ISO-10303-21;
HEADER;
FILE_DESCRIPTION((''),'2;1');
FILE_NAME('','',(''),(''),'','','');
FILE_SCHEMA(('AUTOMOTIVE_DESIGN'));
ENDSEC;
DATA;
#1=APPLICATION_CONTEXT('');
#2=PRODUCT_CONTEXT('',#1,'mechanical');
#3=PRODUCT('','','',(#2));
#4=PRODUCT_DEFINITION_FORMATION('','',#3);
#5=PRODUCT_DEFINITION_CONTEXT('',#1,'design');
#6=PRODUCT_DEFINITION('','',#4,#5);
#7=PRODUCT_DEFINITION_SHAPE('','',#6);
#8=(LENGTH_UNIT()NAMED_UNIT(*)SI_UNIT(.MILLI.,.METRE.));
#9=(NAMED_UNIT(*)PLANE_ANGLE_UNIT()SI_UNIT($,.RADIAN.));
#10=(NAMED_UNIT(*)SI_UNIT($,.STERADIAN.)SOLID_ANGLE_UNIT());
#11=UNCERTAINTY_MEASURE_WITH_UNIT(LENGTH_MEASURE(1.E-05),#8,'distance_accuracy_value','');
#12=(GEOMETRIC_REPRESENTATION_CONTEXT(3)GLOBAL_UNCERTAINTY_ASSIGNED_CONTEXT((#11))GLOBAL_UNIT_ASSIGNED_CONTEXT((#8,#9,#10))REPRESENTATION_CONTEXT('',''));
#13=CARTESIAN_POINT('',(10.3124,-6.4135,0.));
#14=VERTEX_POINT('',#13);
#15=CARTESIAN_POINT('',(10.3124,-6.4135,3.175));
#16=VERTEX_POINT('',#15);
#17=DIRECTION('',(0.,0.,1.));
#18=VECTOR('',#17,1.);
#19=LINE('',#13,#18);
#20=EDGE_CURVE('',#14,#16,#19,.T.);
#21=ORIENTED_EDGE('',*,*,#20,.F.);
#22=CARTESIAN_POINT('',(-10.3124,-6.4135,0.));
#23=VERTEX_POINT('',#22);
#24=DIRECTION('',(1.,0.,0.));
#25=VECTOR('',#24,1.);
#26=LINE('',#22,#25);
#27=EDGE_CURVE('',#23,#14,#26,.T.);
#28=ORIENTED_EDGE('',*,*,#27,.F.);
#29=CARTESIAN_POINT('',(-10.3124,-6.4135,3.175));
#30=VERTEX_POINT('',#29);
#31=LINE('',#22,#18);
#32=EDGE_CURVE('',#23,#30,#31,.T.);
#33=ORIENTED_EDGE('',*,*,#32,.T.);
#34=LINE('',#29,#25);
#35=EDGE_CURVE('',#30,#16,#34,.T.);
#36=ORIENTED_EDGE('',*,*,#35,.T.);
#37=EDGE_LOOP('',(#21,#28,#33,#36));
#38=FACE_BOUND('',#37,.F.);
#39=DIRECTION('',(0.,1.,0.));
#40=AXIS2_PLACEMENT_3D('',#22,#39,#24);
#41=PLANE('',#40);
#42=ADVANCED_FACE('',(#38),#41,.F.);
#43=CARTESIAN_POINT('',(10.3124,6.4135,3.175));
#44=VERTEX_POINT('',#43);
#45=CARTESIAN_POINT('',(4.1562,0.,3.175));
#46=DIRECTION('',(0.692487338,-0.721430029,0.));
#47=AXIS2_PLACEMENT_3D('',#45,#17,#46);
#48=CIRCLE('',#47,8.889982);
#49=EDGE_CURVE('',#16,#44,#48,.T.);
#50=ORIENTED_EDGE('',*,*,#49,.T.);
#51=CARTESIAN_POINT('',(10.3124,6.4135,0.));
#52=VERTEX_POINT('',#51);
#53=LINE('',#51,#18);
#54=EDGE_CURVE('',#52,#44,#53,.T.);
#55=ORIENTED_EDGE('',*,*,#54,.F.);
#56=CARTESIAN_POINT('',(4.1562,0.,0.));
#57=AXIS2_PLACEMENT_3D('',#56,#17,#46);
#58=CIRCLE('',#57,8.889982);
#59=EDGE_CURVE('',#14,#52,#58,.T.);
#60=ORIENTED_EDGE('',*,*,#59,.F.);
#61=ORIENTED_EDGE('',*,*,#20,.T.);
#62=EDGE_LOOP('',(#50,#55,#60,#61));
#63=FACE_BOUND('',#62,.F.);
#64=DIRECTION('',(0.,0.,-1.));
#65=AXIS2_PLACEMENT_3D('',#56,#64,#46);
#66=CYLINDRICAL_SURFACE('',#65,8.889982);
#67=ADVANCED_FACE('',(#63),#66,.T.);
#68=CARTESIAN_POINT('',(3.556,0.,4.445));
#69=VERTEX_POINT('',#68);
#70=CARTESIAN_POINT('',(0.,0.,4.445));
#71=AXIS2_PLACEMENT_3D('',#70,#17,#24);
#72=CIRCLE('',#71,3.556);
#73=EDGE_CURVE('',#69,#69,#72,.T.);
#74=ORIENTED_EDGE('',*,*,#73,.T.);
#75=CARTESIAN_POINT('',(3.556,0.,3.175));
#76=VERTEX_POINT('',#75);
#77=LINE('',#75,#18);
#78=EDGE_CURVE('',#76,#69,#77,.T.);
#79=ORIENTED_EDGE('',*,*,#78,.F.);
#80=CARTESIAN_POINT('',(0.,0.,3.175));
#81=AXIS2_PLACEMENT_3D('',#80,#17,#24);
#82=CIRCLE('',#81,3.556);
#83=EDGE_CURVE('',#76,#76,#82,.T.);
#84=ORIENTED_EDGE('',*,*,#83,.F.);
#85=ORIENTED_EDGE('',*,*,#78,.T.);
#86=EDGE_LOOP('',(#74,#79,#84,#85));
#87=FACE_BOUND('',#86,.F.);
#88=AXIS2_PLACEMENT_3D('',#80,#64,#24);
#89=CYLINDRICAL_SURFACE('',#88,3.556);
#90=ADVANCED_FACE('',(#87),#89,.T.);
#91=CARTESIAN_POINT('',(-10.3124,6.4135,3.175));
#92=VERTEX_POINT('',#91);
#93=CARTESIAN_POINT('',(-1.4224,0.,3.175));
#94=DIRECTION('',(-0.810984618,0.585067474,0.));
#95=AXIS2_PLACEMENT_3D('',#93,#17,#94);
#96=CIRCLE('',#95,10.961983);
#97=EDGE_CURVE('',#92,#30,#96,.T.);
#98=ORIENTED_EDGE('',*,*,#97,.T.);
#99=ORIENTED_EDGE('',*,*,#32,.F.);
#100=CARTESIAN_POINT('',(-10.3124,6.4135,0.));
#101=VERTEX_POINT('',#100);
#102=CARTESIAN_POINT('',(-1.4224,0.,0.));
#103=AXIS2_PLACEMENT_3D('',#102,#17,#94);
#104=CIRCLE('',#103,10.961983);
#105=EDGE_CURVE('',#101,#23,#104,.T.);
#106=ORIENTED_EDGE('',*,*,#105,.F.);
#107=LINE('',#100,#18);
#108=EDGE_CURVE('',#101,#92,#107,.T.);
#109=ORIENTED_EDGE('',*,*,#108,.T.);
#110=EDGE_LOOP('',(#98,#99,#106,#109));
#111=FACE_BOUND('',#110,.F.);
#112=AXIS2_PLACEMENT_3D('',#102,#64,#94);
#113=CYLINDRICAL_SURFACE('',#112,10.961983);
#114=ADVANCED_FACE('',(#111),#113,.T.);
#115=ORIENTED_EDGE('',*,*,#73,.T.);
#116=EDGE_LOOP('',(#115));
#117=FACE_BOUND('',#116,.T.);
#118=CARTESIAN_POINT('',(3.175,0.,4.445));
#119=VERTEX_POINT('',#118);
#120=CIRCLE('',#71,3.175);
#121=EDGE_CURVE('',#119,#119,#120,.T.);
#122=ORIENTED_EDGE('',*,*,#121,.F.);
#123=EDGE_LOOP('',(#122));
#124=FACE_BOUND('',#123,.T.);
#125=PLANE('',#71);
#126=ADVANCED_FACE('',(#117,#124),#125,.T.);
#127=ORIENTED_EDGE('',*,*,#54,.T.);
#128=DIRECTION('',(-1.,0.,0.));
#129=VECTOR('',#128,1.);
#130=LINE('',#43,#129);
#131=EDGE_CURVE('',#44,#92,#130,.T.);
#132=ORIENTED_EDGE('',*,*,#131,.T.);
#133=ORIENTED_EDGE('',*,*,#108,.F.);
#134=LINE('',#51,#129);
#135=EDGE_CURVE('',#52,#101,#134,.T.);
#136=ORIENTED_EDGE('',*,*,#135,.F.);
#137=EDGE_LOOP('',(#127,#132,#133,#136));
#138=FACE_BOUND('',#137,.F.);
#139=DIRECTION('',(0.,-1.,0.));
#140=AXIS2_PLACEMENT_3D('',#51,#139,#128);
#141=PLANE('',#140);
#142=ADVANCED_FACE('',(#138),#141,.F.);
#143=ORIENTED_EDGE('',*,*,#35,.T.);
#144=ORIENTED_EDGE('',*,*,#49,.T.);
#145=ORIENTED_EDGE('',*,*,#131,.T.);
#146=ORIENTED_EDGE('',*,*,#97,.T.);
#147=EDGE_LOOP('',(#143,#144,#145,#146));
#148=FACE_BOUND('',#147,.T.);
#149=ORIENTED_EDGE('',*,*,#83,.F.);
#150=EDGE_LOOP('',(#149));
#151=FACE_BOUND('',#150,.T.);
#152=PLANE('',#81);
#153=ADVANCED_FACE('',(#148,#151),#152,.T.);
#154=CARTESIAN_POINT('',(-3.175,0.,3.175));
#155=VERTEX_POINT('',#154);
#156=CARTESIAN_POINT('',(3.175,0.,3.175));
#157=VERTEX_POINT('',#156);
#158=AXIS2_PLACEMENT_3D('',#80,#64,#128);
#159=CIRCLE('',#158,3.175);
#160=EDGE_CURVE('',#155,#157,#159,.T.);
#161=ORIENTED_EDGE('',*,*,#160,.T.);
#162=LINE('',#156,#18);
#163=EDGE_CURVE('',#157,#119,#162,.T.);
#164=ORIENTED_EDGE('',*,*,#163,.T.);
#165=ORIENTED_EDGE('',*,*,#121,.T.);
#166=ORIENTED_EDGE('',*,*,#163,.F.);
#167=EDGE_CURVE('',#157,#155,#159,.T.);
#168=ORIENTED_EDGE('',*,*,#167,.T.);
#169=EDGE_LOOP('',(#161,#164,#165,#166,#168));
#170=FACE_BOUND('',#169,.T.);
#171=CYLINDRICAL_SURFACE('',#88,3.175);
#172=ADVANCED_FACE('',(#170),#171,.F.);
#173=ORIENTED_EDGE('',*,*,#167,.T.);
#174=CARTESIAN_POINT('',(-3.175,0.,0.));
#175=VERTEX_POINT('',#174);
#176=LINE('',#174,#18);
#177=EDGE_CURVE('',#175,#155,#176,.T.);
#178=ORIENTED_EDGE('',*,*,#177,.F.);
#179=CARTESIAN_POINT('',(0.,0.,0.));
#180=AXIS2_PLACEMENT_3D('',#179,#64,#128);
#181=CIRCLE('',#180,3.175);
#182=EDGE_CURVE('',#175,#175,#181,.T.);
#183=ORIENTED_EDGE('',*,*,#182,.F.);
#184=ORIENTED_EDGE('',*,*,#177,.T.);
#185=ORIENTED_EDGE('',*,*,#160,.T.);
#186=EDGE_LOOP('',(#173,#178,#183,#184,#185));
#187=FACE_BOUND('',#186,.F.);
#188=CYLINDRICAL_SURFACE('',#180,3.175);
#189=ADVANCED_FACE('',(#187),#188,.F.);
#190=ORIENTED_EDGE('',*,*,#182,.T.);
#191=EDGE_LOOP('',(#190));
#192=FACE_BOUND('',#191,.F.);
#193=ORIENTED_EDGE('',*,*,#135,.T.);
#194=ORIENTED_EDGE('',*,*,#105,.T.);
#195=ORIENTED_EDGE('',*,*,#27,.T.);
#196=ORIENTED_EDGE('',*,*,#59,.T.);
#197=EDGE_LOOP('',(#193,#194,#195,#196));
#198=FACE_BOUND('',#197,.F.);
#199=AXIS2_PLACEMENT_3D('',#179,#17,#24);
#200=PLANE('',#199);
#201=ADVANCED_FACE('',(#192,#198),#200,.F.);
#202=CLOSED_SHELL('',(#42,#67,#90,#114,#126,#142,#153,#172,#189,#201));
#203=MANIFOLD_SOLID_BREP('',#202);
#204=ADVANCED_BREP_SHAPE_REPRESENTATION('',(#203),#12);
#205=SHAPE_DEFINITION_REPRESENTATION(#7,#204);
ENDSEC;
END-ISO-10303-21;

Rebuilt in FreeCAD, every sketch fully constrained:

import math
import FreeCAD as App
import Part
import Sketcher

V = App.Vector
Q = App.Units.Quantity

doc = App.newDocument("Part")
body = doc.addObject("PartDesign::Body", "Body")

sketch1 = body.newObject("Sketcher::SketchObject", "Sketch")
sketch1.AttachmentSupport = (doc.getObject("XY_Plane"), [""])
sketch1.MapMode = "FlatFace"
sketch1.addGeometry(Part.ArcOfCircle(Part.Circle(V(-1, 0, 0), V(0, 0, 1), 11), math.radians(144), math.radians(216)), False)
sketch1.addGeometry(Part.LineSegment(V(-10, -6, 0), V(10, -6, 0)), False)
sketch1.addGeometry(Part.ArcOfCircle(Part.Circle(V(4, 0, 0), V(0, 0, 1), 9), math.radians(-46), math.radians(46)), False)
sketch1.addGeometry(Part.LineSegment(V(10, 6, 0), V(-10, 6, 0)), False)
sketch1.addConstraint(Sketcher.Constraint("Coincident", 0, 2, 1, 1))
sketch1.addConstraint(Sketcher.Constraint("Coincident", 1, 2, 2, 1))
sketch1.addConstraint(Sketcher.Constraint("Coincident", 2, 2, 3, 1))
sketch1.addConstraint(Sketcher.Constraint("Coincident", 3, 2, 0, 1))
sketch1.addConstraint(Sketcher.Constraint("Horizontal", 1))
sketch1.addConstraint(Sketcher.Constraint("Horizontal", 3))
sketch1.addConstraint(Sketcher.Constraint("Symmetric", 0, 2, 2, 2, -1, 1))
sketch1.addConstraint(Sketcher.Constraint("PointOnObject", 0, 3, -1))
sketch1.addConstraint(Sketcher.Constraint("PointOnObject", 2, 3, -1))
sketch1.addConstraint(Sketcher.Constraint("Radius", 2, Q("0.35 in")))
sketch1.addConstraint(Sketcher.Constraint("DistanceX", 0, 2, 0, 3, Q("0.35 in")))
sketch1.addConstraint(Sketcher.Constraint("DistanceX", 0, 3, -1, 1, Q("0.056 in")))
sketch1.addConstraint(Sketcher.Constraint("DistanceY", 1, 2, 2, 2, Q("0.505 in")))
pad1 = body.newObject("PartDesign::Pad", "Pad")
pad1.Profile = sketch1
pad1.Length = Q("0.125 in")

sketch2 = body.newObject("Sketcher::SketchObject", "Sketch001")
sketch2.AttachmentSupport = (doc.getObject("XY_Plane"), [""])
sketch2.MapMode = "FlatFace"
sketch2.addGeometry(Part.Circle(V(0, 0, 0), V(0, 0, 1), 3.2), False)
sketch2.addConstraint(Sketcher.Constraint("Coincident", 0, 3, -1, 1))
sketch2.addConstraint(Sketcher.Constraint("Diameter", 0, Q("0.25 in")))
pocket1 = body.newObject("PartDesign::Pocket", "Pocket")
pocket1.Profile = sketch2
pocket1.Length = Q("0.2 in")
pocket1.Reversed = True

sketch3 = body.newObject("Sketcher::SketchObject", "Sketch002")
sketch3.AttachmentSupport = (doc.getObject("XY_Plane"), [""])
sketch3.MapMode = "FlatFace"
sketch3.AttachmentOffset = App.Placement(V(0, 0, 0.125 * 25.4), App.Rotation())
sketch3.addGeometry(Part.Circle(V(0, 0, 0), V(0, 0, 1), 3.6), False)
sketch3.addGeometry(Part.Circle(V(0, 0, 0), V(0, 0, 1), 3.2), False)
sketch3.addConstraint(Sketcher.Constraint("Coincident", 0, 3, -1, 1))
sketch3.addConstraint(Sketcher.Constraint("Coincident", 1, 3, -1, 1))
sketch3.addConstraint(Sketcher.Constraint("Diameter", 0, Q("0.28 in")))
sketch3.addConstraint(Sketcher.Constraint("Diameter", 1, Q("0.25 in")))
pad2 = body.newObject("PartDesign::Pad", "Pad001")
pad2.Profile = sketch3
pad2.Length = Q("0.05 in")

doc.recompute()
